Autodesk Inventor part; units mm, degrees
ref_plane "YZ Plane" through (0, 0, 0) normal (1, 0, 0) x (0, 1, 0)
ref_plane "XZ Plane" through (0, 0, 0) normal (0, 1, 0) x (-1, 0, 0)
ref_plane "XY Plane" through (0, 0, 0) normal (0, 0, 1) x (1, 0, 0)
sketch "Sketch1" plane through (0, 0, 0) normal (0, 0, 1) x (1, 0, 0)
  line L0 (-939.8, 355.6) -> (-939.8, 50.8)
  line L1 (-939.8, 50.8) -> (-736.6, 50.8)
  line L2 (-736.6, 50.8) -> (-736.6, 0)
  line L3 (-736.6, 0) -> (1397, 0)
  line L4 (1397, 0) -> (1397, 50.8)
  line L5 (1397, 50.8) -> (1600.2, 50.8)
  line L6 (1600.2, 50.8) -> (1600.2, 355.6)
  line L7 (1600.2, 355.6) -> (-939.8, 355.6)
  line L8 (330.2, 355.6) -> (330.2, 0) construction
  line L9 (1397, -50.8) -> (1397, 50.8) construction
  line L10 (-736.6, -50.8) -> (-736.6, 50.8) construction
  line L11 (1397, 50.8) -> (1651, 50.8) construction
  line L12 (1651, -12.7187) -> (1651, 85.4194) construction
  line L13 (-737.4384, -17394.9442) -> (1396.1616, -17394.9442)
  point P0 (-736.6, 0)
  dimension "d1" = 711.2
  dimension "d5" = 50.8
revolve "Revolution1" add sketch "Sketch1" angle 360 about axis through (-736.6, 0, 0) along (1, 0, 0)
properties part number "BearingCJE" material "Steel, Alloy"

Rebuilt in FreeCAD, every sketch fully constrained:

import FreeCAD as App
import Part
import Sketcher

V = App.Vector
Q = App.Units.Quantity


def add_polygon(sketch, points):
    """Adds a closed chain of lines whose ends are joined by coincident constraints."""
    first, n = sketch.GeometryCount, len(points)
    for a, b in zip(points, points[1:] + points[:1]):
        sketch.addGeometry(Part.LineSegment(App.Vector(*a, 0), App.Vector(*b, 0)), False)
    for i in range(n):
        sketch.addConstraint(Sketcher.Constraint("Coincident", first + i, 2, first + (i + 1) % n, 1))

doc = App.newDocument("Part")
body = doc.addObject("PartDesign::Body", "Body")

sketch1 = doc.addObject("Sketcher::SketchObject", "Sketch")
body.addObject(sketch1)
sketch1.AttachmentSupport = (doc.XY_Plane, [""])
sketch1.MapMode = "FlatFace"
add_polygon(sketch1, [(1600, 356), (-940, 356), (-940, 51), (-737, 51), (-737, 0), (1397, 0), (1397, 51), (1600, 51)])
sketch1.addConstraint(Sketcher.Constraint("Horizontal", 0))
sketch1.addConstraint(Sketcher.Constraint("Vertical", 1))
sketch1.addConstraint(Sketcher.Constraint("Horizontal", 2))
sketch1.addConstraint(Sketcher.Constraint("Vertical", 3))
sketch1.addConstraint(Sketcher.Constraint("Horizontal", 4))
sketch1.addConstraint(Sketcher.Constraint("Vertical", 5))
sketch1.addConstraint(Sketcher.Constraint("Horizontal", 6))
sketch1.addConstraint(Sketcher.Constraint("Vertical", 7))
sketch1.addConstraint(Sketcher.Constraint("PointOnObject", 3, 2, -1))
sketch1.addConstraint(Sketcher.Constraint("Horizontal", 2, 2, 5, 2))
sketch1.addConstraint(Sketcher.Constraint("Equal", 2, 6))
sketch1.addConstraint(Sketcher.Constraint("DistanceY", 3, 2, 3, 1, Q("2 in")))
sketch1.addConstraint(Sketcher.Constraint("DistanceX", 0, 2, 0, 1, Q("100 in")))
sketch1.addConstraint(Sketcher.Constraint("DistanceX", 2, 1, 2, 2, Q("8 in")))
sketch1.addConstraint(Sketcher.Constraint("DistanceY", 1, 2, 1, 1, Q("12 in")))
sketch1.addConstraint(Sketcher.Constraint("DistanceX", 0, 2, -1, 1, Q("37 in")))
revolution = doc.addObject("PartDesign::Revolution", "Revolution")
body.addObject(revolution)
revolution.Profile = sketch1
revolution.ReferenceAxis = (sketch1, ["H_Axis"])
revolution.Angle = 360

doc.recompute()
